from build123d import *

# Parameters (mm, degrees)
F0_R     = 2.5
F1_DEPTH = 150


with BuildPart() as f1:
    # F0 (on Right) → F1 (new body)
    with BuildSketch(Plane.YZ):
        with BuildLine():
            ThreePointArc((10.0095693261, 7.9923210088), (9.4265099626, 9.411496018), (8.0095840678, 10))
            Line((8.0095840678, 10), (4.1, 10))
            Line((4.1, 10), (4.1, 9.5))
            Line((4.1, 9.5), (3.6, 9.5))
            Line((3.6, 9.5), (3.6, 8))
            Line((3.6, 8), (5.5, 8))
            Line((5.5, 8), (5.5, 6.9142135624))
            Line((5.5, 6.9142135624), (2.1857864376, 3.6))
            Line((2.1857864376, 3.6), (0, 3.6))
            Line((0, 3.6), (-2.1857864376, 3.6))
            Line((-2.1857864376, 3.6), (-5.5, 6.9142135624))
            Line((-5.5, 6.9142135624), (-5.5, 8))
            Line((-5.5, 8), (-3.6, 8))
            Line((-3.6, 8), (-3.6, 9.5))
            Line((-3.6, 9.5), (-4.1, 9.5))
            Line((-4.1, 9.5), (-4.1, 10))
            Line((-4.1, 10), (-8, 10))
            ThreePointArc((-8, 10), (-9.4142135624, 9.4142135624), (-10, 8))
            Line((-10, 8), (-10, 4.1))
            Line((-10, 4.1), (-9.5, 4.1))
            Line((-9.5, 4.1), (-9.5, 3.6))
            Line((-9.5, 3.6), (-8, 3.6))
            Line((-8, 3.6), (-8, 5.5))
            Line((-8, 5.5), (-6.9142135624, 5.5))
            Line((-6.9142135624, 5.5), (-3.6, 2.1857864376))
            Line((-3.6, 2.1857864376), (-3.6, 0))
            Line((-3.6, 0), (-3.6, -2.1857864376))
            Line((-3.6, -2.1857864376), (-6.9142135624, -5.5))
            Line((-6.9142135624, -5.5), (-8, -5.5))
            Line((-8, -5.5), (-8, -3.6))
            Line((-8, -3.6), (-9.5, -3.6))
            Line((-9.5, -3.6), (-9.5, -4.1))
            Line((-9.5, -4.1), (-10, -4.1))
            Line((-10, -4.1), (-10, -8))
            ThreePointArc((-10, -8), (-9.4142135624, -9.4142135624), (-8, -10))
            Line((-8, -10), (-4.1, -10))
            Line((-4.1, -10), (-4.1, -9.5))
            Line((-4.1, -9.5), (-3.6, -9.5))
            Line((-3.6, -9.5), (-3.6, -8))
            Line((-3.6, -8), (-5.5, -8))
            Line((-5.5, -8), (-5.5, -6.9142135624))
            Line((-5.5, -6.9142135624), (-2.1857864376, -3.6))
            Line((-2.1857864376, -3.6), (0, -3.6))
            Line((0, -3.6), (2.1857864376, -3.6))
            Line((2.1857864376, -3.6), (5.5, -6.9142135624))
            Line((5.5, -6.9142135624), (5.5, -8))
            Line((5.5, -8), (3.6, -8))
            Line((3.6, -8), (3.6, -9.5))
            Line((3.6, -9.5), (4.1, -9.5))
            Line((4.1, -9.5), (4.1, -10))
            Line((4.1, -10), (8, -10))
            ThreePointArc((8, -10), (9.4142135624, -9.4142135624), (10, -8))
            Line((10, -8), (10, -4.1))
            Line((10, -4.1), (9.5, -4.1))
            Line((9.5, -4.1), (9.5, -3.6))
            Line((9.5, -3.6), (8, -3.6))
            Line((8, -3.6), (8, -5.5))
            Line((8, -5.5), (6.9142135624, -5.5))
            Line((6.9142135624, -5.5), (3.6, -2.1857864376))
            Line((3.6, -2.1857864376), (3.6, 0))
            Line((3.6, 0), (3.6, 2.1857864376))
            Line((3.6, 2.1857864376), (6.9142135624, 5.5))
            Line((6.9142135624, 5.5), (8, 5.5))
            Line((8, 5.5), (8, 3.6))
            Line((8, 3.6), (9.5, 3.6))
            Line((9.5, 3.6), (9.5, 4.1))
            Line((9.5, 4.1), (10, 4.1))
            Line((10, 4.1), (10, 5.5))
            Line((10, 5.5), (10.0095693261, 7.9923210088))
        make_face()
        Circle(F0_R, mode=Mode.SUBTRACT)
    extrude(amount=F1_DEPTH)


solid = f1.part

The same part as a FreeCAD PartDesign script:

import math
import FreeCAD as App
import Part
import Sketcher
Q = App.Units.Quantity

doc = App.newDocument("Part")
params = doc.addObject("Spreadsheet::Sheet", "Params")
for row, (alias, value) in enumerate([
    ("sketch1_diameter", "5 mm"),
    ("sketch1_radius", "2 mm"),
    ("sketch1_width", "0.5 mm"),
    ("sketch1_width2", "1.9 mm"),
    ("sketch1_width3", "3.9 mm"),
    ("pad1_length", "150 mm"),
], start=1):
    params.set(f"A{row}", alias)
    params.set(f"B{row}", "=" + value)
    params.setAlias(f"B{row}", alias)

body = doc.addObject("PartDesign::Body", "Body")

sketch1 = body.newObject("Sketcher::SketchObject", "Sketch")
sketch1.AttachmentSupport = (doc.getObject("YZ_Plane"), [""])
sketch1.MapMode = "FlatFace"
sketch1.addGeometry([
    Part.ArcOfCircle(Part.Circle(App.Vector(8.01, 8, 0), App.Vector(0, 0, 1), 2), math.radians(0), math.radians(90)),
    Part.LineSegment(App.Vector(8.01, 10, 0), App.Vector(4.1, 10, 0)),
    Part.LineSegment(App.Vector(4.1, 10, 0), App.Vector(4.1, 9.5, 0)),
    Part.LineSegment(App.Vector(4.1, 9.5, 0), App.Vector(3.6, 9.5, 0)),
    Part.LineSegment(App.Vector(3.6, 9.5, 0), App.Vector(3.6, 8, 0)),
    Part.LineSegment(App.Vector(3.6, 8, 0), App.Vector(5.5, 8, 0)),
    Part.LineSegment(App.Vector(5.5, 8, 0), App.Vector(5.5, 6.91, 0)),
    Part.LineSegment(App.Vector(5.5, 6.91, 0), App.Vector(2.19, 3.6, 0)),
    Part.LineSegment(App.Vector(2.19, 3.6, 0), App.Vector(-2.19, 3.6, 0)),
    Part.LineSegment(App.Vector(-2.19, 3.6, 0), App.Vector(-5.5, 6.91, 0)),
    Part.LineSegment(App.Vector(-5.5, 6.91, 0), App.Vector(-5.5, 8, 0)),
    Part.LineSegment(App.Vector(-5.5, 8, 0), App.Vector(-3.6, 8, 0)),
    Part.LineSegment(App.Vector(-3.6, 8, 0), App.Vector(-3.6, 9.5, 0)),
    Part.LineSegment(App.Vector(-3.6, 9.5, 0), App.Vector(-4.1, 9.5, 0)),
    Part.LineSegment(App.Vector(-4.1, 9.5, 0), App.Vector(-4.1, 10, 0)),
    Part.LineSegment(App.Vector(-4.1, 10, 0), App.Vector(-8, 10, 0)),
    Part.ArcOfCircle(Part.Circle(App.Vector(-8, 8, 0), App.Vector(0, 0, 1), 2), math.radians(90), math.radians(180)),
    Part.LineSegment(App.Vector(-10, 8, 0), App.Vector(-10, 4.1, 0)),
    Part.LineSegment(App.Vector(-10, 4.1, 0), App.Vector(-9.5, 4.1, 0)),
    Part.LineSegment(App.Vector(-9.5, 4.1, 0), App.Vector(-9.5, 3.6, 0)),
    Part.LineSegment(App.Vector(-9.5, 3.6, 0), App.Vector(-8, 3.6, 0)),
    Part.LineSegment(App.Vector(-8, 3.6, 0), App.Vector(-8, 5.5, 0)),
    Part.LineSegment(App.Vector(-8, 5.5, 0), App.Vector(-6.91, 5.5, 0)),
    Part.LineSegment(App.Vector(-6.91, 5.5, 0), App.Vector(-3.6, 2.19, 0)),
    Part.LineSegment(App.Vector(-3.6, 2.19, 0), App.Vector(-3.6, -2.19, 0)),
    Part.LineSegment(App.Vector(-3.6, -2.19, 0), App.Vector(-6.91, -5.5, 0)),
    Part.LineSegment(App.Vector(-6.91, -5.5, 0), App.Vector(-8, -5.5, 0)),
    Part.LineSegment(App.Vector(-8, -5.5, 0), App.Vector(-8, -3.6, 0)),
    Part.LineSegment(App.Vector(-8, -3.6, 0), App.Vector(-9.5, -3.6, 0)),
    Part.LineSegment(App.Vector(-9.5, -3.6, 0), App.Vector(-9.5, -4.1, 0)),
    Part.LineSegment(App.Vector(-9.5, -4.1, 0), App.Vector(-10, -4.1, 0)),
    Part.LineSegment(App.Vector(-10, -4.1, 0), App.Vector(-10, -8, 0)),
    Part.ArcOfCircle(Part.Circle(App.Vector(-8, -8, 0), App.Vector(0, 0, 1), 2), math.radians(180), math.radians(270)),
    Part.LineSegment(App.Vector(-8, -10, 0), App.Vector(-4.1, -10, 0)),
    Part.LineSegment(App.Vector(-4.1, -10, 0), App.Vector(-4.1, -9.5, 0)),
    Part.LineSegment(App.Vector(-4.1, -9.5, 0), App.Vector(-3.6, -9.5, 0)),
    Part.LineSegment(App.Vector(-3.6, -9.5, 0), App.Vector(-3.6, -8, 0)),
    Part.LineSegment(App.Vector(-3.6, -8, 0), App.Vector(-5.5, -8, 0)),
    Part.LineSegment(App.Vector(-5.5, -8, 0), App.Vector(-5.5, -6.91, 0)),
    Part.LineSegment(App.Vector(-5.5, -6.91, 0), App.Vector(-2.19, -3.6, 0)),
    Part.LineSegment(App.Vector(-2.19, -3.6, 0), App.Vector(2.19, -3.6, 0)),
    Part.LineSegment(App.Vector(2.19, -3.6, 0), App.Vector(5.5, -6.91, 0)),
    Part.LineSegment(App.Vector(5.5, -6.91, 0), App.Vector(5.5, -8, 0)),
    Part.LineSegment(App.Vector(5.5, -8, 0), App.Vector(3.6, -8, 0)),
    Part.LineSegment(App.Vector(3.6, -8, 0), App.Vector(3.6, -9.5, 0)),
    Part.LineSegment(App.Vector(3.6, -9.5, 0), App.Vector(4.1, -9.5, 0)),
    Part.LineSegment(App.Vector(4.1, -9.5, 0), App.Vector(4.1, -10, 0)),
    Part.LineSegment(App.Vector(4.1, -10, 0), App.Vector(8, -10, 0)),
    Part.ArcOfCircle(Part.Circle(App.Vector(8, -8, 0), App.Vector(0, 0, 1), 2), math.radians(-90), math.radians(0)),
    Part.LineSegment(App.Vector(10, -8, 0), App.Vector(10, -4.1, 0)),
    Part.LineSegment(App.Vector(10, -4.1, 0), App.Vector(9.5, -4.1, 0)),
    Part.LineSegment(App.Vector(9.5, -4.1, 0), App.Vector(9.5, -3.6, 0)),
    Part.LineSegment(App.Vector(9.5, -3.6, 0), App.Vector(8, -3.6, 0)),
    Part.LineSegment(App.Vector(8, -3.6, 0), App.Vector(8, -5.5, 0)),
    Part.LineSegment(App.Vector(8, -5.5, 0), App.Vector(6.91, -5.5, 0)),
    Part.LineSegment(App.Vector(6.91, -5.5, 0), App.Vector(3.6, -2.19, 0)),
    Part.LineSegment(App.Vector(3.6, -2.19, 0), App.Vector(3.6, 2.19, 0)),
    Part.LineSegment(App.Vector(3.6, 2.19, 0), App.Vector(6.91, 5.5, 0)),
    Part.LineSegment(App.Vector(6.91, 5.5, 0), App.Vector(8, 5.5, 0)),
    Part.LineSegment(App.Vector(8, 5.5, 0), App.Vector(8, 3.6, 0)),
    Part.LineSegment(App.Vector(8, 3.6, 0), App.Vector(9.5, 3.6, 0)),
    Part.LineSegment(App.Vector(9.5, 3.6, 0), App.Vector(9.5, 4.1, 0)),
    Part.LineSegment(App.Vector(9.5, 4.1, 0), App.Vector(10, 4.1, 0)),
    Part.LineSegment(App.Vector(10, 4.1, 0), App.Vector(10, 5.5, 0)),
    Part.LineSegment(App.Vector(10, 5.5, 0), App.Vector(10.01, 7.99, 0)),
    Part.Circle(App.Vector(0, 0, 0), App.Vector(0, 0, 1), 2.5),
], False)
sketch1.addConstraint([
    Sketcher.Constraint("Tangent", 0, 2, 1, 1),
    Sketcher.Constraint("Coincident", 1, 2, 2, 1),
    Sketcher.Constraint("Coincident", 2, 2, 3, 1),
    Sketcher.Constraint("Coincident", 3, 2, 4, 1),
    Sketcher.Constraint("Coincident", 4, 2, 5, 1),
    Sketcher.Constraint("Coincident", 5, 2, 6, 1),
    Sketcher.Constraint("Coincident", 6, 2, 7, 1),
    Sketcher.Constraint("Coincident", 7, 2, 8, 1),
    Sketcher.Constraint("Coincident", 8, 2, 9, 1),
    Sketcher.Constraint("Coincident", 9, 2, 10, 1),
    Sketcher.Constraint("Coincident", 10, 2, 11, 1),
    Sketcher.Constraint("Coincident", 11, 2, 12, 1),
    Sketcher.Constraint("Coincident", 12, 2, 13, 1),
    Sketcher.Constraint("Coincident", 13, 2, 14, 1),
    Sketcher.Constraint("Coincident", 14, 2, 15, 1),
    Sketcher.Constraint("Tangent", 15, 2, 16, 1),
    Sketcher.Constraint("Tangent", 16, 2, 17, 1),
    Sketcher.Constraint("Coincident", 17, 2, 18, 1),
    Sketcher.Constraint("Coincident", 18, 2, 19, 1),
    Sketcher.Constraint("Coincident", 19, 2, 20, 1),
    Sketcher.Constraint("Coincident", 20, 2, 21, 1),
    Sketcher.Constraint("Coincident", 21, 2, 22, 1),
    Sketcher.Constraint("Coincident", 22, 2, 23, 1),
    Sketcher.Constraint("Coincident", 23, 2, 24, 1),
    Sketcher.Constraint("Coincident", 24, 2, 25, 1),
    Sketcher.Constraint("Coincident", 25, 2, 26, 1),
    Sketcher.Constraint("Coincident", 26, 2, 27, 1),
    Sketcher.Constraint("Coincident", 27, 2, 28, 1),
    Sketcher.Constraint("Coincident", 28, 2, 29, 1),
    Sketcher.Constraint("Coincident", 29, 2, 30, 1),
    Sketcher.Constraint("Coincident", 30, 2, 31, 1),
    Sketcher.Constraint("Tangent", 31, 2, 32, 1),
    Sketcher.Constraint("Tangent", 32, 2, 33, 1),
    Sketcher.Constraint("Coincident", 33, 2, 34, 1),
    Sketcher.Constraint("Coincident", 34, 2, 35, 1),
    Sketcher.Constraint("Coincident", 35, 2, 36, 1),
    Sketcher.Constraint("Coincident", 36, 2, 37, 1),
    Sketcher.Constraint("Coincident", 37, 2, 38, 1),
    Sketcher.Constraint("Coincident", 38, 2, 39, 1),
    Sketcher.Constraint("Coincident", 39, 2, 40, 1),
    Sketcher.Constraint("Coincident", 40, 2, 41, 1),
    Sketcher.Constraint("Coincident", 41, 2, 42, 1),
    Sketcher.Constraint("Coincident", 42, 2, 43, 1),
    Sketcher.Constraint("Coincident", 43, 2, 44, 1),
    Sketcher.Constraint("Coincident", 44, 2, 45, 1),
    Sketcher.Constraint("Coincident", 45, 2, 46, 1),
    Sketcher.Constraint("Coincident", 46, 2, 47, 1),
    Sketcher.Constraint("Tangent", 47, 2, 48, 1),
    Sketcher.Constraint("Tangent", 48, 2, 49, 1),
    Sketcher.Constraint("Coincident", 49, 2, 50, 1),
    Sketcher.Constraint("Coincident", 50, 2, 51, 1),
    Sketcher.Constraint("Coincident", 51, 2, 52, 1),
    Sketcher.Constraint("Coincident", 52, 2, 53, 1),
    Sketcher.Constraint("Coincident", 53, 2, 54, 1),
    Sketcher.Constraint("Coincident", 54, 2, 55, 1),
    Sketcher.Constraint("Coincident", 55, 2, 56, 1),
    Sketcher.Constraint("Coincident", 56, 2, 57, 1),
    Sketcher.Constraint("Coincident", 57, 2, 58, 1),
    Sketcher.Constraint("Coincident", 58, 2, 59, 1),
    Sketcher.Constraint("Coincident", 59, 2, 60, 1),
    Sketcher.Constraint("Coincident", 60, 2, 61, 1),
    Sketcher.Constraint("Coincident", 61, 2, 62, 1),
    Sketcher.Constraint("Coincident", 62, 2, 63, 1),
    Sketcher.Constraint("Coincident", 63, 2, 64, 1),
    Sketcher.Constraint("Tangent", 64, 2, 0, 1),
    Sketcher.Constraint("Horizontal", 1),
    Sketcher.Constraint("Vertical", 2),
    Sketcher.Constraint("Horizontal", 3),
    Sketcher.Constraint("Vertical", 4),
    Sketcher.Constraint("Horizontal", 5),
    Sketcher.Constraint("Vertical", 6),
    Sketcher.Constraint("Horizontal", 8),
    Sketcher.Constraint("Vertical", 10),
    Sketcher.Constraint("Horizontal", 11),
    Sketcher.Constraint("Vertical", 12),
    Sketcher.Constraint("Horizontal", 13),
    Sketcher.Constraint("Vertical", 14),
    Sketcher.Constraint("Horizontal", 15),
    Sketcher.Constraint("Vertical", 17),
    Sketcher.Constraint("Horizontal", 18),
    Sketcher.Constraint("Vertical", 19),
    Sketcher.Constraint("Horizontal", 20),
    Sketcher.Constraint("Vertical", 21),
    Sketcher.Constraint("Horizontal", 22),
    Sketcher.Constraint("Vertical", 24),
    Sketcher.Constraint("Horizontal", 26),
    Sketcher.Constraint("Vertical", 27),
    Sketcher.Constraint("Horizontal", 28),
    Sketcher.Constraint("Vertical", 29),
    Sketcher.Constraint("Horizontal", 30),
    Sketcher.Constraint("Vertical", 31),
    Sketcher.Constraint("Horizontal", 33),
    Sketcher.Constraint("Vertical", 34),
    Sketcher.Constraint("Horizontal", 35),
    Sketcher.Constraint("Vertical", 36),
    Sketcher.Constraint("Horizontal", 37),
    Sketcher.Constraint("Vertical", 38),
    Sketcher.Constraint("Horizontal", 40),
    Sketcher.Constraint("Vertical", 42),
    Sketcher.Constraint("Horizontal", 43),
    Sketcher.Constraint("Vertical", 44),
    Sketcher.Constraint("Horizontal", 45),
    Sketcher.Constraint("Vertical", 46),
    Sketcher.Constraint("Horizontal", 47),
    Sketcher.Constraint("Vertical", 49),
    Sketcher.Constraint("Horizontal", 50),
    Sketcher.Constraint("Vertical", 51),
    Sketcher.Constraint("Horizontal", 52),
    Sketcher.Constraint("Vertical", 53),
    Sketcher.Constraint("Horizontal", 54),
    Sketcher.Constraint("Vertical", 56),
    Sketcher.Constraint("Horizontal", 58),
    Sketcher.Constraint("Vertical", 59),
    Sketcher.Constraint("Horizontal", 60),
    Sketcher.Constraint("Vertical", 61),
    Sketcher.Constraint("Horizontal", 62),
    Sketcher.Constraint("Vertical", 63),
    Sketcher.Constraint("Coincident", 65, 3, -1, 1),
    Sketcher.Constraint("Equal", 0, 16),
    Sketcher.Constraint("Equal", 16, 32),
    Sketcher.Constraint("Equal", 32, 48),
    Sketcher.Constraint("Symmetric", 16, 3, 48, 3, -1, 1),
    Sketcher.Constraint("Symmetric", 1, 2, 33, 2, -1, 1),
    Sketcher.Constraint("Symmetric", 3, 2, 35, 2, -1, 1),
    Sketcher.Constraint("Symmetric", 5, 2, 37, 2, -1, 1),
    Sketcher.Constraint("Symmetric", 7, 2, 39, 2, -1, 1),
    Sketcher.Constraint("Symmetric", 9, 2, 41, 2, -1, 1),
    Sketcher.Constraint("Symmetric", 11, 2, 43, 2, -1, 1),
    Sketcher.Constraint("Symmetric", 13, 2, 45, 2, -1, 1),
    Sketcher.Constraint("Symmetric", 18, 2, 50, 2, -1, 1),
    Sketcher.Constraint("Symmetric", 20, 2, 52, 2, -1, 1),
    Sketcher.Constraint("Symmetric", 22, 2, 54, 2, -1, 1),
    Sketcher.Constraint("Symmetric", 23, 2, 55, 2, -1, 1),
    Sketcher.Constraint("Symmetric", 25, 2, 57, 2, -1, 1),
    Sketcher.Constraint("Symmetric", 27, 2, 59, 2, -1, 1),
    Sketcher.Constraint("Symmetric", 29, 2, 61, 2, -1, 1),
    Sketcher.Constraint("Symmetric", 32, 3, 48, 3, -2),
    Sketcher.Constraint("Symmetric", 6, 2, 9, 2, -2),
    Sketcher.Constraint("Symmetric", 4, 2, 11, 2, -2),
    Sketcher.Constraint("Symmetric", 2, 2, 13, 2, -2),
    Sketcher.Constraint("Symmetric", 29, 2, 50, 2, -2),
    Sketcher.Constraint("Symmetric", 27, 2, 52, 2, -2),
    Sketcher.Constraint("Symmetric", 25, 2, 54, 2, -2),
    Sketcher.Constraint("Perpendicular", 7, 9),
    Sketcher.Constraint("Parallel", 9, 23),
    Sketcher.Constraint("Perpendicular", 23, 25),
    Sketcher.Constraint("Parallel", 25, 39),
    Sketcher.Constraint("Perpendicular", 39, 41),
    Sketcher.Constraint("Perpendicular", 55, 57),
    Sketcher.Constraint("Horizontal", 16, 3, 4, 2),
    Sketcher.Constraint("Horizontal", 8, 2, 19, 2),
    Sketcher.Constraint("Horizontal", 24, 2, 55, 2),
    Sketcher.Constraint("Horizontal", 58, 2, 63, 2),
    Sketcher.Constraint("Vertical", 15, 2, 20, 2),
    Sketcher.Constraint("Vertical", 12, 2, 23, 2),
    Sketcher.Constraint("Vertical", 49, 2, 62, 2),
    Sketcher.Constraint("Equal", 13, 18),
    Sketcher.Constraint("Equal", 62, 2),
    Sketcher.Constraint("Equal", 58, 6),
    Sketcher.Constraint("Equal", 47, 17),
    Sketcher.Constraint("Equal", 14, 19),
    Sketcher.Constraint("Equal", 43, 21),
    Sketcher.Constraint("Equal", 40, 24),
    Sketcher.Constraint("Diameter", 65, 5.0),
    Sketcher.Constraint("Radius", 0, 2.0),
    Sketcher.Constraint("DistanceX", 3, 2, 3, 1, 0.5),
    Sketcher.Constraint("DistanceX", 5, 1, 5, 2, 1.9),
    Sketcher.Constraint("DistanceX", 15, 2, 15, 1, 3.9),
    Sketcher.Constraint("DistanceY", -1, 1, 0, 3, 8.0),
    Sketcher.Constraint("Angle", 64, Q("89.780013 deg")),
    Sketcher.Constraint("DistanceX", 8, 2, 8, 1, 4.371573),
])
sketch1.setExpression("Constraints[163]", "Params.sketch1_diameter")
sketch1.setExpression("Constraints[164]", "Params.sketch1_radius")
sketch1.setExpression("Constraints[165]", "Params.sketch1_width")
sketch1.setExpression("Constraints[166]", "Params.sketch1_width2")
sketch1.setExpression("Constraints[167]", "Params.sketch1_width3")
pad1 = body.newObject("PartDesign::Pad", "Pad")
pad1.Profile = sketch1
pad1.setExpression("Length", "Params.pad1_length")

doc.recompute()
